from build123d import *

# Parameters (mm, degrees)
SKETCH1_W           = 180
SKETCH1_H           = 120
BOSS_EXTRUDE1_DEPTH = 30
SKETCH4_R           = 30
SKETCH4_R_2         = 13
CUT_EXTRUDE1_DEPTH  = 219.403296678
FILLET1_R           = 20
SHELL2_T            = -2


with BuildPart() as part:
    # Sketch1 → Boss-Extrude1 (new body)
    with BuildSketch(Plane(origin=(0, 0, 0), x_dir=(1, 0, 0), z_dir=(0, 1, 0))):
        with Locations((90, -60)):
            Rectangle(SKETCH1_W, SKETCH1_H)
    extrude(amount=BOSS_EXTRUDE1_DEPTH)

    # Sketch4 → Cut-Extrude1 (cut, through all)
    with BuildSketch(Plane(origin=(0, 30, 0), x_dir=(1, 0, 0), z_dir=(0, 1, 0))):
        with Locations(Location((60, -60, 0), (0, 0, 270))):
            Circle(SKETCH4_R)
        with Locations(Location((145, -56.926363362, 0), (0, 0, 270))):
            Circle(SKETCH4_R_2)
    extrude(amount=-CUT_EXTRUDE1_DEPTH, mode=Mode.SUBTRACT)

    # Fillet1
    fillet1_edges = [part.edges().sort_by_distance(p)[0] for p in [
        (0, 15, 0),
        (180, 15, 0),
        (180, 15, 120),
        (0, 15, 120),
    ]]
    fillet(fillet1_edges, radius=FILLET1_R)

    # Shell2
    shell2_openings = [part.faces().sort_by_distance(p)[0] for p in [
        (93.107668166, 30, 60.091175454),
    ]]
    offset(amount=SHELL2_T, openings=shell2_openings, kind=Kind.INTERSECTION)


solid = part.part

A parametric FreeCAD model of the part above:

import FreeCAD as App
import Part
import Sketcher


def edges_at(feature, points):
    """Names of the edges that pass closest to the given points."""
    edges = feature.Shape.Edges
    near = lambda p: min(range(len(edges)), key=lambda i: edges[i].distToShape(Part.Vertex(*p))[0])
    return sorted({f"Edge{near(p) + 1}" for p in points})


def faces_at(feature, points):
    """Names of the faces that lie closest to the given points."""
    faces = feature.Shape.Faces
    near = lambda p: min(range(len(faces)), key=lambda i: faces[i].distToShape(Part.Vertex(*p))[0])
    return sorted({f"Face{near(p) + 1}" for p in points})


def add_polygon(sketch, points):
    """Adds a closed chain of lines whose ends are joined by coincident constraints."""
    first, n = sketch.GeometryCount, len(points)
    for a, b in zip(points, points[1:] + points[:1]):
        sketch.addGeometry(Part.LineSegment(App.Vector(*a, 0), App.Vector(*b, 0)), False)
    for i in range(n):
        sketch.addConstraint(Sketcher.Constraint("Coincident", first + i, 2, first + (i + 1) % n, 1))

doc = App.newDocument("Part")
body = doc.addObject("PartDesign::Body", "Body")

# Sketch on XZ plane
sketch1 = body.newObject("Sketcher::SketchObject", "Sketch")
sketch1.AttachmentSupport = (doc.getObject("XZ_Plane"), [""])
sketch1.MapMode = "FlatFace"
add_polygon(sketch1, [(0, 0), (0, 120), (180, 120), (180, 0)])  # lines 0-3
sketch1.addConstraint([
    Sketcher.Constraint("Vertical", 0),
    Sketcher.Constraint("Horizontal", 1),
    Sketcher.Constraint("Vertical", 2),
    Sketcher.Constraint("Horizontal", 3),
    Sketcher.Constraint("Coincident", 3, 2, -1, 1),
    Sketcher.Constraint("DistanceX", 1, 1, 1, 2, 180.0),
    Sketcher.Constraint("DistanceY", 0, 1, 0, 2, 120.0),
])
pad1 = body.newObject("PartDesign::Pad", "Pad")
pad1.Profile = sketch1
pad1.Length = 30
pad1.Reversed = True

# Sketch on XZ plane
sketch2 = body.newObject("Sketcher::SketchObject", "Sketch001")
sketch2.AttachmentSupport = (doc.getObject("XZ_Plane"), [""])
sketch2.MapMode = "FlatFace"
sketch2.AttachmentOffset = App.Placement(App.Vector(0, 0, -30), App.Rotation())
sketch2.addGeometry([
    Part.Circle(App.Vector(60, 60, 0), App.Vector(0, 0, 1), 30),
    Part.Circle(App.Vector(145, 56.926363, 0), App.Vector(0, 0, 1), 13),
], False)
sketch2.addConstraint([
    Sketcher.Constraint("Diameter", 0, 60.0),
    Sketcher.Constraint("Diameter", 1, 26.0),
    Sketcher.Constraint("DistanceX", -1, 1, 0, 3, 60.0),
    Sketcher.Constraint("DistanceY", -1, 1, 0, 3, 60.0),
    Sketcher.Constraint("DistanceX", -1, 1, 1, 3, 145.0),
    Sketcher.Constraint("DistanceY", -1, 1, 1, 3, 56.926363),
])
pocket1 = body.newObject("PartDesign::Pocket", "Pocket")
pocket1.Profile = sketch2
pocket1.Type = "ThroughAll"
pocket1.Reversed = True
doc.recompute()

fillet = body.newObject("PartDesign::Fillet", "Fillet")
fillet.Base = (pocket1, edges_at(pocket1, [
    (0, 15, 0),
    (180, 15, 0),
    (180, 15, 120),
    (0, 15, 120),
]))
fillet.Radius = 20
doc.recompute()

thickness = body.newObject("PartDesign::Thickness", "Thickness")
thickness.Base = (fillet, faces_at(fillet, [(90, 30, 60)]))
thickness.Value = 2
thickness.Reversed = True
thickness.Join = "Intersection"

doc.recompute()
